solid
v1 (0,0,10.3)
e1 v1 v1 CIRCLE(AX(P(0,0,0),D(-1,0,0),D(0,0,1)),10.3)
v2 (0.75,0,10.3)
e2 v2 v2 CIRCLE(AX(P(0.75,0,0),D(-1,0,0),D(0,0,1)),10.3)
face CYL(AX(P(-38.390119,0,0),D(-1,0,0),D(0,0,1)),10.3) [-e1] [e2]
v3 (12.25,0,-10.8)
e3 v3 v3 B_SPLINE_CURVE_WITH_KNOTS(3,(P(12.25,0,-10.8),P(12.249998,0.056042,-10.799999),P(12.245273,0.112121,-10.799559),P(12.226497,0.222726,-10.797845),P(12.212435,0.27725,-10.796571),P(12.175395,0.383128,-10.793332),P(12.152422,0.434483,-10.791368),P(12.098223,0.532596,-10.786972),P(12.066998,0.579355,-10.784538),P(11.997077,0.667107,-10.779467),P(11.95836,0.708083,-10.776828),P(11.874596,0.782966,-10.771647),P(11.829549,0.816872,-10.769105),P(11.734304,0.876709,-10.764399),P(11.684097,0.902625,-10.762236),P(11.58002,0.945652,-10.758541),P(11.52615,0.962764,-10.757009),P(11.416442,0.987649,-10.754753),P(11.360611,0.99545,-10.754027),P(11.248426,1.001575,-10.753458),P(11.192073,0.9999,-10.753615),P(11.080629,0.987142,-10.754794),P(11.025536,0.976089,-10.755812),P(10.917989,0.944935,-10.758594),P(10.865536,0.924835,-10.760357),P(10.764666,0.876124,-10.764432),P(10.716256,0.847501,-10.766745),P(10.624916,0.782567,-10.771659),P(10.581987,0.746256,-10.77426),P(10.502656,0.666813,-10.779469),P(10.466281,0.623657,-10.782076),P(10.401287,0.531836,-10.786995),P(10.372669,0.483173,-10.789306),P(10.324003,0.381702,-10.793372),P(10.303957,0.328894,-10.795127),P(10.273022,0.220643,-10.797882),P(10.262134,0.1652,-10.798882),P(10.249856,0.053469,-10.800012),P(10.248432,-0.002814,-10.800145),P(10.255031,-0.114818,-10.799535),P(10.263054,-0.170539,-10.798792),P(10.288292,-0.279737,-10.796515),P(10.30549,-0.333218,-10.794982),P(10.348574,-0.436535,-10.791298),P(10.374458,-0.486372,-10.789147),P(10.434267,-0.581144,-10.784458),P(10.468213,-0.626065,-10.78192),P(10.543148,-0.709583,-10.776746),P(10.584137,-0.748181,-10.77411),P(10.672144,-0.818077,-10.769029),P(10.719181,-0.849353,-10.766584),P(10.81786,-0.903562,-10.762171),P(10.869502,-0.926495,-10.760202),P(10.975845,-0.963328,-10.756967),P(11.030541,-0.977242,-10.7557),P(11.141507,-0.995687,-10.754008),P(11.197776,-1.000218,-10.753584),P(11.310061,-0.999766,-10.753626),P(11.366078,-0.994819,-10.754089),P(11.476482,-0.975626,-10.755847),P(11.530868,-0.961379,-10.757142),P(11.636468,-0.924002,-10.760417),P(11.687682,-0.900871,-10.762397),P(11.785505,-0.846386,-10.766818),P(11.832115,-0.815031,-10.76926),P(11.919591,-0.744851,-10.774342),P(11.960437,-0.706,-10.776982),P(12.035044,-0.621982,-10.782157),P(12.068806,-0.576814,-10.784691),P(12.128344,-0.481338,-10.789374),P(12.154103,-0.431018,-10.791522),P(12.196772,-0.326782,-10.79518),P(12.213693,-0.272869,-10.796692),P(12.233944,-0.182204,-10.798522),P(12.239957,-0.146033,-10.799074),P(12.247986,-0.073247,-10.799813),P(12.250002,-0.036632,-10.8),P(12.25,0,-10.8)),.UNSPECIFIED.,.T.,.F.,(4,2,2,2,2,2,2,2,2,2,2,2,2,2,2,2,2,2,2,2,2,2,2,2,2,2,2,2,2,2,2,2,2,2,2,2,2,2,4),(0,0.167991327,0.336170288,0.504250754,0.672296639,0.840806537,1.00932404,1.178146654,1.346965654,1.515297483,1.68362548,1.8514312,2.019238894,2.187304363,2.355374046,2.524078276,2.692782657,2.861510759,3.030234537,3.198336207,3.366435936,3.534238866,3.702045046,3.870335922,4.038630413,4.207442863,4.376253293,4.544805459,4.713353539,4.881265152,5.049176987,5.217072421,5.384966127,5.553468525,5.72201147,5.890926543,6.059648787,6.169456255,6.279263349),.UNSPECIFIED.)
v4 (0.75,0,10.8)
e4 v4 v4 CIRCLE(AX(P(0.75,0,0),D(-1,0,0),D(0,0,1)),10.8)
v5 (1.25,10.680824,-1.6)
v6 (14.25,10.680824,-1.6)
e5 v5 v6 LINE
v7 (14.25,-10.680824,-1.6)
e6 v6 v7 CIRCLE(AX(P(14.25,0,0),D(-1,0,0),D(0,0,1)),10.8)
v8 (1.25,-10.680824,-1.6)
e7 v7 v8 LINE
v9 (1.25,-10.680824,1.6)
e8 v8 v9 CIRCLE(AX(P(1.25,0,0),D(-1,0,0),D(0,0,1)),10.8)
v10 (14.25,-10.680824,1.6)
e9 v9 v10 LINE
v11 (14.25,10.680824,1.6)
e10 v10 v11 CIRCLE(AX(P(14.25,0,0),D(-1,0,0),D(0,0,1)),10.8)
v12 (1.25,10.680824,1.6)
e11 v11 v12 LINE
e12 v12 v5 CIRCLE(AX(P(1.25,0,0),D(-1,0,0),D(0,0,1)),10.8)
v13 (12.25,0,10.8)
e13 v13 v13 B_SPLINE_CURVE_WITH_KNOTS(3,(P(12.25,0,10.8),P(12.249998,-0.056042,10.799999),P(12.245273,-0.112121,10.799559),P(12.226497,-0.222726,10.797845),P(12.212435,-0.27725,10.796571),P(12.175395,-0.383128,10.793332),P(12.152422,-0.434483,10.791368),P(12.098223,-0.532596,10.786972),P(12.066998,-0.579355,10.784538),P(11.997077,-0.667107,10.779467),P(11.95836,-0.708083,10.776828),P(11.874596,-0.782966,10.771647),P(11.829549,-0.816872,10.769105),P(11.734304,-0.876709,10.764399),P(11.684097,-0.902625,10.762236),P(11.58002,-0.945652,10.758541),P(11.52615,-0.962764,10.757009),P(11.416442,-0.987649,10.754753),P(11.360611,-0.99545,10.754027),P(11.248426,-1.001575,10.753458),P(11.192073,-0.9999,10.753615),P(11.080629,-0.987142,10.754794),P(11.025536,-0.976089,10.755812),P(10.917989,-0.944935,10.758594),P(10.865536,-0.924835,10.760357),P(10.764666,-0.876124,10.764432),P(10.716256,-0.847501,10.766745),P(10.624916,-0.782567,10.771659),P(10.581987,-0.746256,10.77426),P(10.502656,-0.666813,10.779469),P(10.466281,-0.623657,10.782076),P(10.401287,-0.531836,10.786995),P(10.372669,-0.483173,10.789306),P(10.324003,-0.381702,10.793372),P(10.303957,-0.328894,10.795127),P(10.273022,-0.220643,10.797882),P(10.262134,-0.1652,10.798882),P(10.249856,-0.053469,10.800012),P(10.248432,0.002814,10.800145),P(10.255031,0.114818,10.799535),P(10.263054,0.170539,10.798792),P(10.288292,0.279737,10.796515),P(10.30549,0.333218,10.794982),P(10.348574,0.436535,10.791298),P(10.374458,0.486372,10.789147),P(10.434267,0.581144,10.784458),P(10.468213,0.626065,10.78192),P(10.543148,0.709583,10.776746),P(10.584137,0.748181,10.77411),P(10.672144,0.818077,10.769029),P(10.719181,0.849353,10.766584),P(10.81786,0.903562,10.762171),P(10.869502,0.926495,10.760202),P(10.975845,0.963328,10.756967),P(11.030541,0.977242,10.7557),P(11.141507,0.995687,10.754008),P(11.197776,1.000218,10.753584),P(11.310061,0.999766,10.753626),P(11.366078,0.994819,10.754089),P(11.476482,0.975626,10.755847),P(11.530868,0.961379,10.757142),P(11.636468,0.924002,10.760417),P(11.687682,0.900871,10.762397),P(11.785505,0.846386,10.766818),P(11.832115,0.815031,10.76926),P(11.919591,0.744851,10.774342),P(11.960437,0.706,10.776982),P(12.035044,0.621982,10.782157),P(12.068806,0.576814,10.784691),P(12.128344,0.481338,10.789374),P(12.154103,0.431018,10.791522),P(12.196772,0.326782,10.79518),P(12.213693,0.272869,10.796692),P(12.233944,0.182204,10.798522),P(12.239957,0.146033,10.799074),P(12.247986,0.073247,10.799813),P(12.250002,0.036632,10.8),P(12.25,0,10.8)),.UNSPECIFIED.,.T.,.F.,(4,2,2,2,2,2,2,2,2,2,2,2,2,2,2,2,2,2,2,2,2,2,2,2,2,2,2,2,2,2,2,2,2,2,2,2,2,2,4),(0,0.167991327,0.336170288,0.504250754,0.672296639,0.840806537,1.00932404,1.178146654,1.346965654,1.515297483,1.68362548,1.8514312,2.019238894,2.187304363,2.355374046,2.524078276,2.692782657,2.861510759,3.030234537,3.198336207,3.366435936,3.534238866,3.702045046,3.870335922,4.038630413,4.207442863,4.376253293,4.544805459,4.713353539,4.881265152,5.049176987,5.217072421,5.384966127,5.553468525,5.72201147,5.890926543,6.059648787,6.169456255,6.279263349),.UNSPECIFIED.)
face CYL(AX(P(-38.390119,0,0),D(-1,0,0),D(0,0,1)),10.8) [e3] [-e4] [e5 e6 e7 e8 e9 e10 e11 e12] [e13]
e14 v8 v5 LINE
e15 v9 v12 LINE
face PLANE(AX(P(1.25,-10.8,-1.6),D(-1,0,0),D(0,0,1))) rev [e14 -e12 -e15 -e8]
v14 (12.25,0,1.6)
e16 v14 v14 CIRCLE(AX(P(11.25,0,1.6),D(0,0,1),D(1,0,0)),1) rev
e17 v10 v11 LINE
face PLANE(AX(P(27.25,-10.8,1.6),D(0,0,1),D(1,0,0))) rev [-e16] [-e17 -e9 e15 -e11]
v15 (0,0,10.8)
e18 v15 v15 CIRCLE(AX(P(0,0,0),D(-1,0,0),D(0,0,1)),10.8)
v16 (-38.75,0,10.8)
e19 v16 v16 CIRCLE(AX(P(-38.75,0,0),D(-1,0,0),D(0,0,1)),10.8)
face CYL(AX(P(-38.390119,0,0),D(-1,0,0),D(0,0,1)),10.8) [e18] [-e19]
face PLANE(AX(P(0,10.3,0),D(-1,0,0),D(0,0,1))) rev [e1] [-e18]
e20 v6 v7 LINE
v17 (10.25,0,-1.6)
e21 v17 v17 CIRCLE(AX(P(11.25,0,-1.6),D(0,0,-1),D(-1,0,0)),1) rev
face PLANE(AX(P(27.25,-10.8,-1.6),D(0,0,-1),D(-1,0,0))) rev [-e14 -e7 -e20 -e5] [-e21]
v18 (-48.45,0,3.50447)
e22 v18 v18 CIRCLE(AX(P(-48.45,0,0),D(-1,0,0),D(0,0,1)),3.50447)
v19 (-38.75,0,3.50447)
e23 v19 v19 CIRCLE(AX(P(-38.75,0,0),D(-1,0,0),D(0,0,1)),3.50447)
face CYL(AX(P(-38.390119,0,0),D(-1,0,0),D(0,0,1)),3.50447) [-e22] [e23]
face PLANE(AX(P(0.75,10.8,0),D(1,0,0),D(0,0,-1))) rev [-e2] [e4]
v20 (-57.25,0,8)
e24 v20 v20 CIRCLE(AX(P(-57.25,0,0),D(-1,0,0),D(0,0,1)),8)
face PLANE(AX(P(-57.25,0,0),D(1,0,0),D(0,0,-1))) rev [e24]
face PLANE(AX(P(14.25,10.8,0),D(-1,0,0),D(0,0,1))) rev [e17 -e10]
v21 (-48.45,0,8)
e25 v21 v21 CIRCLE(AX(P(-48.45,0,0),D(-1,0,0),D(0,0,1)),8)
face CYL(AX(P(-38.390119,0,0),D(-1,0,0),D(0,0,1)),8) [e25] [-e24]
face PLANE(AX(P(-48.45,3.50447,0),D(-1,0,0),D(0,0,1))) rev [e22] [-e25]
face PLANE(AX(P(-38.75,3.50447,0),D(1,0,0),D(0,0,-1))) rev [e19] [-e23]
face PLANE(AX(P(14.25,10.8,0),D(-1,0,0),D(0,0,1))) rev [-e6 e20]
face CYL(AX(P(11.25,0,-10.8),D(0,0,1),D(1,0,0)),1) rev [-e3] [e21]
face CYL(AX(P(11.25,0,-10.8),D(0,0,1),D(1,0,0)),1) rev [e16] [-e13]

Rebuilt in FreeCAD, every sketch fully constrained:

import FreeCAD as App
import Part
import Sketcher

V = App.Vector


def add_polygon(sketch, points):
    """Adds a closed chain of lines whose ends are joined by coincident constraints."""
    first, n = sketch.GeometryCount, len(points)
    for a, b in zip(points, points[1:] + points[:1]):
        sketch.addGeometry(Part.LineSegment(App.Vector(*a, 0), App.Vector(*b, 0)), False)
    for i in range(n):
        sketch.addConstraint(Sketcher.Constraint("Coincident", first + i, 2, first + (i + 1) % n, 1))

doc = App.newDocument("Part")
body = doc.addObject("PartDesign::Body", "Body")

sketch1 = body.newObject("Sketcher::SketchObject", "Sketch")
sketch1.AttachmentSupport = (doc.getObject("XY_Plane"), [""])
sketch1.MapMode = "FlatFace"
add_polygon(sketch1, [(-57.2, 8), (-57.2, 0), (14.2, 0), (14.2, 10.8), (0.8, 10.8), (0.8, 10.3), (0, 10.3), (0, 10.8), (-38.8, 10.8), (-38.8, 3.5), (-48.5, 3.5), (-48.5, 8)])
sketch1.addConstraint([
    Sketcher.Constraint("Vertical", 0),
    Sketcher.Constraint("Horizontal", 1),
    Sketcher.Constraint("Vertical", 2),
    Sketcher.Constraint("Horizontal", 3),
    Sketcher.Constraint("Vertical", 4),
    Sketcher.Constraint("Horizontal", 5),
    Sketcher.Constraint("Vertical", 6),
    Sketcher.Constraint("Horizontal", 7),
    Sketcher.Constraint("Vertical", 8),
    Sketcher.Constraint("Horizontal", 9),
    Sketcher.Constraint("Vertical", 10),
    Sketcher.Constraint("Horizontal", 11),
    Sketcher.Constraint("PointOnObject", 0, 2, -1),
    Sketcher.Constraint("PointOnObject", 5, 2, -2),
    Sketcher.Constraint("Horizontal", 3, 2, 6, 2),
    Sketcher.Constraint("DistanceY", 0, 2, 0, 1, 8.0),
    Sketcher.Constraint("DistanceX", 1, 1, 1, 2, 71.5),
    Sketcher.Constraint("DistanceX", 3, 2, 3, 1, 13.5),
    Sketcher.Constraint("DistanceX", 9, 2, 9, 1, 9.7),
    Sketcher.Constraint("DistanceX", 11, 2, 11, 1, 8.8),
    Sketcher.Constraint("DistanceY", 2, 1, 2, 2, 10.8),
    Sketcher.Constraint("DistanceY", 4, 2, 4, 1, 0.5),
    Sketcher.Constraint("DistanceX", 5, 2, 5, 1, 0.75),
    Sketcher.Constraint("DistanceY", 8, 2, 8, 1, 7.29553),
])
revolution = body.newObject("PartDesign::Revolution", "Revolution")
revolution.Profile = sketch1
revolution.ReferenceAxis = (sketch1, ["H_Axis"])
revolution.Angle = 360

sketch2 = body.newObject("Sketcher::SketchObject", "Sketch001")
sketch2.AttachmentSupport = (doc.getObject("XY_Plane"), [""])
sketch2.MapMode = "FlatFace"
sketch2.addGeometry(Part.Circle(V(11.2, 0, 0), V(0, 0, 1), 1), False)
sketch2.addConstraint([
    Sketcher.Constraint("PointOnObject", 0, 3, -1),
    Sketcher.Constraint("Diameter", 0, 2.0),
    Sketcher.Constraint("DistanceX", -1, 1, 0, 3, 11.25),
])
pocket1 = body.newObject("PartDesign::Pocket", "Pocket")
pocket1.Profile = sketch2
pocket1.Type = "ThroughAll"
pocket1.Midplane = True

sketch3 = body.newObject("Sketcher::SketchObject", "Sketch002")
sketch3.AttachmentSupport = (doc.getObject("XZ_Plane"), [""])
sketch3.MapMode = "FlatFace"
add_polygon(sketch3, [(1.2, -1.6), (1.2, 1.6), (27.2, 1.6), (27.2, -1.6)])
sketch3.addConstraint([
    Sketcher.Constraint("Vertical", 0),
    Sketcher.Constraint("Horizontal", 1),
    Sketcher.Constraint("Vertical", 2),
    Sketcher.Constraint("Horizontal", 3),
    Sketcher.Constraint("DistanceX", 1, 1, 1, 2, 26.0),
    Sketcher.Constraint("DistanceY", 0, 1, 0, 2, 3.2),
    Sketcher.Constraint("DistanceY", -1, 1, 0, 2, 1.6),
    Sketcher.Constraint("DistanceX", -1, 1, 0, 2, 1.25),
])
pocket2 = body.newObject("PartDesign::Pocket", "Pocket001")
pocket2.Profile = sketch3
pocket2.Type = "ThroughAll"
pocket2.Midplane = True

doc.recompute()
